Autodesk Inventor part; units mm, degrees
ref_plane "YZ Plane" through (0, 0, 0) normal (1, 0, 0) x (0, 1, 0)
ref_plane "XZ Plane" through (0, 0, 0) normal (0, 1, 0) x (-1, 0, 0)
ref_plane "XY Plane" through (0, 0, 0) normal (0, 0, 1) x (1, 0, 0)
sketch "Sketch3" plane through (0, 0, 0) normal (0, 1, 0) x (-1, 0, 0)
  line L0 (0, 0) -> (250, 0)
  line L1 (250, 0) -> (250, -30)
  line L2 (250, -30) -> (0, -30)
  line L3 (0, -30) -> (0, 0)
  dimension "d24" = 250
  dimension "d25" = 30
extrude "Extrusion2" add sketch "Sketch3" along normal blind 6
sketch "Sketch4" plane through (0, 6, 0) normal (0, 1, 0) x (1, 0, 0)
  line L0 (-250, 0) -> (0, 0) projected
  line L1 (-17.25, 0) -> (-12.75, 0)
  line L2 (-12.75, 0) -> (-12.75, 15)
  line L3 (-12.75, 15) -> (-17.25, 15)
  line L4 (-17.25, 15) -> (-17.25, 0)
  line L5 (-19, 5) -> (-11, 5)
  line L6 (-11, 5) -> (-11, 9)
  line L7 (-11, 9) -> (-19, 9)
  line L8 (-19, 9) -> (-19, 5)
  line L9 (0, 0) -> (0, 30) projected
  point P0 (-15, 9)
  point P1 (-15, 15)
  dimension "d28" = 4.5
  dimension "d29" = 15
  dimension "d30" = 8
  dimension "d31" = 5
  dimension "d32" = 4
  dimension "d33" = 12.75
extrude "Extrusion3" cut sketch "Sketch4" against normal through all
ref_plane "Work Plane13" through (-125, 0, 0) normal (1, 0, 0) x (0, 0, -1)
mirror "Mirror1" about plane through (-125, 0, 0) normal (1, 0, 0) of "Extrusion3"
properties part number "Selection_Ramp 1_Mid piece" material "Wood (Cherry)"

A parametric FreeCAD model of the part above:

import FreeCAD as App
import Part
import Sketcher
from FreeCAD import Vector
Q = App.Units.Quantity


def add_polygon(sketch, points):
    """Adds a closed chain of lines whose ends are joined by coincident constraints."""
    first, n = sketch.GeometryCount, len(points)
    for a, b in zip(points, points[1:] + points[:1]):
        sketch.addGeometry(Part.LineSegment(App.Vector(*a, 0), App.Vector(*b, 0)), False)
    for i in range(n):
        sketch.addConstraint(Sketcher.Constraint("Coincident", first + i, 2, first + (i + 1) % n, 1))

doc = App.newDocument("Part")
body = doc.addObject("PartDesign::Body", "Body")

sketch1 = doc.addObject("Sketcher::SketchObject", "Sketch")
body.addObject(sketch1)
sketch1.AttachmentSupport = (doc.XZ_Plane, [""])
sketch1.MapMode = "FlatFace"
add_polygon(sketch1, [(-250, 0), (0, 0), (0, -30), (-250, -30)])
sketch1.addConstraint([
    Sketcher.Constraint("Horizontal", 0),
    Sketcher.Constraint("Vertical", 1),
    Sketcher.Constraint("Horizontal", 2),
    Sketcher.Constraint("Vertical", 3),
    Sketcher.Constraint("Coincident", 0, 2, -1, 1),
    Sketcher.Constraint("DistanceX", 0, 1, 0, 2, Q("250 mm")),
    Sketcher.Constraint("DistanceY", 1, 2, 1, 1, Q("30 mm")),
])
pad1 = doc.addObject("PartDesign::Pad", "Pad")
body.addObject(pad1)
pad1.Profile = sketch1
pad1.Length = 6
pad1.Reversed = True

sketch2 = doc.addObject("Sketcher::SketchObject", "Sketch001")
body.addObject(sketch2)
sketch2.AttachmentSupport = (doc.XZ_Plane, [""])
sketch2.MapMode = "FlatFace"
sketch2.AttachmentOffset = App.Placement(Vector(0, 0, -6), App.Rotation())
add_polygon(sketch2, [(-17.2, -5), (-17.2, 0), (-12.8, 0), (-12.8, -5), (-11, -5), (-11, -9), (-12.8, -9), (-12.8, -15), (-17.2, -15), (-17.2, -9), (-19, -9), (-19, -5)])
sketch2.addConstraint([
    Sketcher.Constraint("Vertical", 0),
    Sketcher.Constraint("Horizontal", 1),
    Sketcher.Constraint("Vertical", 2),
    Sketcher.Constraint("Horizontal", 3),
    Sketcher.Constraint("Vertical", 4),
    Sketcher.Constraint("Horizontal", 5),
    Sketcher.Constraint("Vertical", 6),
    Sketcher.Constraint("Horizontal", 7),
    Sketcher.Constraint("Vertical", 8),
    Sketcher.Constraint("Horizontal", 9),
    Sketcher.Constraint("Vertical", 10),
    Sketcher.Constraint("Horizontal", 11),
    Sketcher.Constraint("PointOnObject", 0, 2, -1),
    Sketcher.Constraint("Horizontal", 5, 2, 8, 2),
    Sketcher.Constraint("Horizontal", 3, 2, 10, 2),
    Sketcher.Constraint("Vertical", 2, 2, 5, 2),
    Sketcher.Constraint("Vertical", 0, 2, 7, 2),
    Sketcher.Constraint("Equal", 5, 9),
    Sketcher.Constraint("DistanceY", 0, 1, 0, 2, Q("5 mm")),
    Sketcher.Constraint("DistanceY", 4, 2, 4, 1, Q("4 mm")),
    Sketcher.Constraint("DistanceX", 1, 1, 1, 2, Q("4.5 mm")),
    Sketcher.Constraint("DistanceY", 6, 2, -1, 1, Q("15 mm")),
    Sketcher.Constraint("DistanceX", 9, 2, 4, 2, Q("8 mm")),
    Sketcher.Constraint("DistanceX", 1, 2, -1, 1, Q("12.75 mm")),
])
pocket1 = doc.addObject("PartDesign::Pocket", "Pocket")
body.addObject(pocket1)
pocket1.Profile = sketch2
pocket1.Type = "ThroughAll"
pocket1.Reversed = True
doc.recompute()

datumplane = doc.addObject("PartDesign::Plane", "DatumPlane")
body.addObject(datumplane)
datumplane.AttachmentSupport = (doc.YZ_Plane, [""])
datumplane.MapMode = "FlatFace"
datumplane.AttachmentOffset = App.Placement(Vector(0, 0, -125), App.Rotation())
mirrored = doc.addObject("PartDesign::Mirrored", "Mirrored")
body.addObject(mirrored)
mirrored.Originals = [pocket1]
mirrored.MirrorPlane = (datumplane, [""])
body.Tip = mirrored

doc.recompute()
